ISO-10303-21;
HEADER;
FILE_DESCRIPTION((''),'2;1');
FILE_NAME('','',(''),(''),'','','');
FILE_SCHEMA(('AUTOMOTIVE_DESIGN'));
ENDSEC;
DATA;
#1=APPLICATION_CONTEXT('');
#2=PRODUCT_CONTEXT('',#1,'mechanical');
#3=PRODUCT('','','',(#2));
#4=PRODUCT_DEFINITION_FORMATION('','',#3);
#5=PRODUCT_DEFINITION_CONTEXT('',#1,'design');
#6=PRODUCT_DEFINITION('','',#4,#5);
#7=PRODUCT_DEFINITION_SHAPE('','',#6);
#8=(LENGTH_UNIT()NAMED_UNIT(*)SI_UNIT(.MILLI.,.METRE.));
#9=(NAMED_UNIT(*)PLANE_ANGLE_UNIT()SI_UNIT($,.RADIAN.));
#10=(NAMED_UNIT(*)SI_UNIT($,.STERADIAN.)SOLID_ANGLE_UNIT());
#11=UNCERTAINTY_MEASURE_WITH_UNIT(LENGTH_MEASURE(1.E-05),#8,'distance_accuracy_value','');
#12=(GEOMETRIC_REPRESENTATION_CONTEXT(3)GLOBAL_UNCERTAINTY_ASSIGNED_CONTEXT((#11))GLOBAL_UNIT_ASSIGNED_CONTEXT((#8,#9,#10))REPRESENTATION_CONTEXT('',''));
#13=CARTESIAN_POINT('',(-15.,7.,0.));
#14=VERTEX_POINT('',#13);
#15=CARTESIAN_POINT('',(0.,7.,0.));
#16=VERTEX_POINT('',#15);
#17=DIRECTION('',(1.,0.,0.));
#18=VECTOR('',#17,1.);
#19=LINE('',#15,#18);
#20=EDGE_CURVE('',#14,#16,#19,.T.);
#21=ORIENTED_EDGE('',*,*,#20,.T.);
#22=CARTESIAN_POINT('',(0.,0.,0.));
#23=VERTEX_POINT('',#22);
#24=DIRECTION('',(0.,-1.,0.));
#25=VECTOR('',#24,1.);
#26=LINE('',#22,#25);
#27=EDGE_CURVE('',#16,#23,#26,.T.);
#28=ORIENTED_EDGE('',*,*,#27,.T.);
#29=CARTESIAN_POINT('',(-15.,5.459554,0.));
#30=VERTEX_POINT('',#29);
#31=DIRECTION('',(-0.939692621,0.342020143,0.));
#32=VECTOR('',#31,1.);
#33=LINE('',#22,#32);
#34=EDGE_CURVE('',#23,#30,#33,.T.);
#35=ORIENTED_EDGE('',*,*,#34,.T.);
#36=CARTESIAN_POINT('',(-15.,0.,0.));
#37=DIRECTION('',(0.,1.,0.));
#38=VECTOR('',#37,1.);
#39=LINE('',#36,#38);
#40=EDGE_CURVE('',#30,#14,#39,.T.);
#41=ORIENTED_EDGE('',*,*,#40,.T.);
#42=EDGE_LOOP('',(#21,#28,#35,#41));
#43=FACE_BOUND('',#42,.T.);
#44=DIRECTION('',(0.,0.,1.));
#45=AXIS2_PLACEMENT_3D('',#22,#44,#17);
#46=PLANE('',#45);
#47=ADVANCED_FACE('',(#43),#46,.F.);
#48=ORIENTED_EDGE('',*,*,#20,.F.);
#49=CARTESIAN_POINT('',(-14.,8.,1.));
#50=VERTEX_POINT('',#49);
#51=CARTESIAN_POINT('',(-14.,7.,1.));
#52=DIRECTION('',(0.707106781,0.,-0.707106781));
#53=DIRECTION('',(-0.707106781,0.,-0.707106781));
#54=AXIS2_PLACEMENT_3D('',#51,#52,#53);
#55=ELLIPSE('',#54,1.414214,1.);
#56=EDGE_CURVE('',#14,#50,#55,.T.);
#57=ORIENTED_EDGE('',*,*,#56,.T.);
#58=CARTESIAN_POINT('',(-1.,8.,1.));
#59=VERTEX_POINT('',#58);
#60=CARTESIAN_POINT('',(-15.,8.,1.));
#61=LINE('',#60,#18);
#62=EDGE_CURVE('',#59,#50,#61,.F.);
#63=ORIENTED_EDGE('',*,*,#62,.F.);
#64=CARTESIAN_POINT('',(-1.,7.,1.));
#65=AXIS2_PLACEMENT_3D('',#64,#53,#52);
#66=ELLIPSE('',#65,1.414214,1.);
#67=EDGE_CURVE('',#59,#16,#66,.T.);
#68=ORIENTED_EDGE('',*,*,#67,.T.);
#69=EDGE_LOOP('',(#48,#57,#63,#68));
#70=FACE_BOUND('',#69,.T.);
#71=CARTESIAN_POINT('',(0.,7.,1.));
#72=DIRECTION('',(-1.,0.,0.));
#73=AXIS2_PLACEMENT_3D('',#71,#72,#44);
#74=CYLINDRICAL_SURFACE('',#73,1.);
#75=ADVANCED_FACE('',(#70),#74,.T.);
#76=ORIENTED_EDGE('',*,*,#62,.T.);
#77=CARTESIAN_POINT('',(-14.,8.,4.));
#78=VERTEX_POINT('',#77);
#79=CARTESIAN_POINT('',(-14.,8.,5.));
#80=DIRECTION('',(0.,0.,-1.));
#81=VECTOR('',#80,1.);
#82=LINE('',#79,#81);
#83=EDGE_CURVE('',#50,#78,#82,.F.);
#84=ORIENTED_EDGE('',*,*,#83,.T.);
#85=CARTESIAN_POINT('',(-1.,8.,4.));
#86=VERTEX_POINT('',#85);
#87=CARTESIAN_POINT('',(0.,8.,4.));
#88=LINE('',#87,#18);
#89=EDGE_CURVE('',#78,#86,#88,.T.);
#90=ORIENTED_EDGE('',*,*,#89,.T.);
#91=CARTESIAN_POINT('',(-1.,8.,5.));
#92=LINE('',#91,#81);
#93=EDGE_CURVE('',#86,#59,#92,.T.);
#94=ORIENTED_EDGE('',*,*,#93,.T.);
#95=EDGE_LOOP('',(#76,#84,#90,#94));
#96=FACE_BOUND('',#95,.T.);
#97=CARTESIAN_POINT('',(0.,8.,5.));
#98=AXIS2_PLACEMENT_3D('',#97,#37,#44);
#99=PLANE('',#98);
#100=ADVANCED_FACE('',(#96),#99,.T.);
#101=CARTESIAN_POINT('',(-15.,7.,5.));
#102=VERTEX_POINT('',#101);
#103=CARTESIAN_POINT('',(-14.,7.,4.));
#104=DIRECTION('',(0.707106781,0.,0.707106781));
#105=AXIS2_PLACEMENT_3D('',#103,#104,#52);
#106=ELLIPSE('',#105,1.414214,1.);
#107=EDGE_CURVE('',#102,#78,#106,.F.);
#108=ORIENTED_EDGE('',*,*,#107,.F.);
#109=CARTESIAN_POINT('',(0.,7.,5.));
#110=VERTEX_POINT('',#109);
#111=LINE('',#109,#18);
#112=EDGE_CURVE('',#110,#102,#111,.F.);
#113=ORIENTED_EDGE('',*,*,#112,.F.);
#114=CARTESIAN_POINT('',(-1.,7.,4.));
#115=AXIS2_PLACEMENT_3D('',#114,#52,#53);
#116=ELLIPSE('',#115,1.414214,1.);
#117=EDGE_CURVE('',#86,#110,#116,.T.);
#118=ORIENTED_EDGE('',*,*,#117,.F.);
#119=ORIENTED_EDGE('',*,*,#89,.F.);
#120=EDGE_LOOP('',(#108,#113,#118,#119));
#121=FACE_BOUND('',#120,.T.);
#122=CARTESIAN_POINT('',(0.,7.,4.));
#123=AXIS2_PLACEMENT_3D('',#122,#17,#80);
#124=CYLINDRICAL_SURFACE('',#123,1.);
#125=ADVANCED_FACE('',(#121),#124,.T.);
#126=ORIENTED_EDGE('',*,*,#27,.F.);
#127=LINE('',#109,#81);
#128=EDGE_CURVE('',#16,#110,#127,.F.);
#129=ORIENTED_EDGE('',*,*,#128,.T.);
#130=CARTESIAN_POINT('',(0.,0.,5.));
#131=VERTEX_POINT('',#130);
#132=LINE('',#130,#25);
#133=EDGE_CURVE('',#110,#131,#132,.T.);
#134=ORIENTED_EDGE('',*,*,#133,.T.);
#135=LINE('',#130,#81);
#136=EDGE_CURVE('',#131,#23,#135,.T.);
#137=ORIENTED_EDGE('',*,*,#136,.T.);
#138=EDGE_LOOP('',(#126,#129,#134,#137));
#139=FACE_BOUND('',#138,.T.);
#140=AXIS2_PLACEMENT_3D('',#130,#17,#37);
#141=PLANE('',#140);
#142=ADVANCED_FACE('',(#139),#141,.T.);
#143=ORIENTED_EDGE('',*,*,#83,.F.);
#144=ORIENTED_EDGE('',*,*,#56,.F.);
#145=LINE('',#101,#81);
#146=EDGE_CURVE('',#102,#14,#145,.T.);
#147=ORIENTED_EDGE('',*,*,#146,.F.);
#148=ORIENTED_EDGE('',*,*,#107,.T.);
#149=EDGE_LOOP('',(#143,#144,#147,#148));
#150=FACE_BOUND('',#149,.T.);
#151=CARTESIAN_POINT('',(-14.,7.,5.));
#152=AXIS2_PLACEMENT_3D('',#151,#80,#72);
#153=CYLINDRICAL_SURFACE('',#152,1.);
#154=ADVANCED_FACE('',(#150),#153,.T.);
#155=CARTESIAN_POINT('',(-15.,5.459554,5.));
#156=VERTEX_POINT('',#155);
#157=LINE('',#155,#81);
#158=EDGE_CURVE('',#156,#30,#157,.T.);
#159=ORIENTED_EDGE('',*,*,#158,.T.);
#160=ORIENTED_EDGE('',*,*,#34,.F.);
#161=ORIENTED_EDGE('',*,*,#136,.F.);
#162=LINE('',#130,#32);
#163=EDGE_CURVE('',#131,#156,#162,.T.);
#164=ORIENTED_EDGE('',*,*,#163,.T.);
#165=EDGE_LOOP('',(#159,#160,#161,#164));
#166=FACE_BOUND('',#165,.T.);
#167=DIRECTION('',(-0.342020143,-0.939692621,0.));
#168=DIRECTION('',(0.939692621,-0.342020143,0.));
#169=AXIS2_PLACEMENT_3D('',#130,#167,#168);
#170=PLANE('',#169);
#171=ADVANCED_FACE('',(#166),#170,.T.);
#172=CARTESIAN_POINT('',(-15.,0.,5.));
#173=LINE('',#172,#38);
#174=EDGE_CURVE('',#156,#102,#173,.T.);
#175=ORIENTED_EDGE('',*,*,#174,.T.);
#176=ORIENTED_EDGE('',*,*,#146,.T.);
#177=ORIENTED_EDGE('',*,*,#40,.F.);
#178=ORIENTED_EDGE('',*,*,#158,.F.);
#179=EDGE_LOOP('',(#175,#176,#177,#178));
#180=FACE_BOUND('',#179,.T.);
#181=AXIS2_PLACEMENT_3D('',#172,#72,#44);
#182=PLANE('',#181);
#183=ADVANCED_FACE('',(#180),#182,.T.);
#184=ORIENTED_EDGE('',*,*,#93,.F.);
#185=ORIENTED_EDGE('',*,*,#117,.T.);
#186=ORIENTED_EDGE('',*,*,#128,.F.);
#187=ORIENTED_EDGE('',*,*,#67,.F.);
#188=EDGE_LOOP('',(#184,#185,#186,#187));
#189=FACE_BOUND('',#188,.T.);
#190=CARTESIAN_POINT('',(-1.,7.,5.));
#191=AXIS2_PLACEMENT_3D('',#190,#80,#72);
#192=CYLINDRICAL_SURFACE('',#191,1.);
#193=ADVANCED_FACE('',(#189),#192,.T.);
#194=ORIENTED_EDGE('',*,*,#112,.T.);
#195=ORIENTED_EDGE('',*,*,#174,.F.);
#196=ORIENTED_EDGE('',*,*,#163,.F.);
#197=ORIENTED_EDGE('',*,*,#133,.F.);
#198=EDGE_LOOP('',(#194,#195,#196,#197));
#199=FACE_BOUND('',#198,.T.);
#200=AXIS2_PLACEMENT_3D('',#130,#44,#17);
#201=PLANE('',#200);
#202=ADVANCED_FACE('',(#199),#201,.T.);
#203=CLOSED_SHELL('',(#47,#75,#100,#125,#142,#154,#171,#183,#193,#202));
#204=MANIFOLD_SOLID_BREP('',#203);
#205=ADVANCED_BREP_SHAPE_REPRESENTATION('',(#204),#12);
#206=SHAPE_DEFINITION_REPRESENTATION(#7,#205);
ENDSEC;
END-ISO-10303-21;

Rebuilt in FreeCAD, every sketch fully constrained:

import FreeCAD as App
import Part
import Sketcher
from FreeCAD import Vector
Q = App.Units.Quantity


def edges_at(feature, points):
    """Names of the edges that pass closest to the given points."""
    edges = feature.Shape.Edges
    near = lambda p: min(range(len(edges)), key=lambda i: edges[i].distToShape(Part.Vertex(*p))[0])
    return sorted({f"Edge{near(p) + 1}" for p in points})


def add_polygon(sketch, points):
    """Adds a closed chain of lines whose ends are joined by coincident constraints."""
    first, n = sketch.GeometryCount, len(points)
    for a, b in zip(points, points[1:] + points[:1]):
        sketch.addGeometry(Part.LineSegment(App.Vector(*a, 0), App.Vector(*b, 0)), False)
    for i in range(n):
        sketch.addConstraint(Sketcher.Constraint("Coincident", first + i, 2, first + (i + 1) % n, 1))

doc = App.newDocument("Part")
body = doc.addObject("PartDesign::Body", "Body")

# Sketch on XY plane
sketch1 = body.newObject("Sketcher::SketchObject", "Sketch")
sketch1.AttachmentSupport = (doc.getObject("XY_Plane"), [""])
sketch1.MapMode = "FlatFace"
add_polygon(sketch1, [(0, 0), (0, 8), (-15, 8), (-15, 5.5)])  # lines 0-3
sketch1.addConstraint([
    Sketcher.Constraint("Vertical", 0),
    Sketcher.Constraint("Horizontal", 1),
    Sketcher.Constraint("Vertical", 2),
    Sketcher.Constraint("Coincident", 3, 2, -1, 1),
    Sketcher.Constraint("DistanceX", 1, 2, 1, 1, 15.0),
    Sketcher.Constraint("DistanceY", 0, 1, 0, 2, 8.0),
    Sketcher.Constraint("Angle", 3, Q("-20 deg")),
])
pad1 = body.newObject("PartDesign::Pad", "Pad")
pad1.Profile = sketch1
pad1.Length = 5
doc.recompute()

fillet = body.newObject("PartDesign::Fillet", "Fillet")
fillet.Base = (pad1, edges_at(pad1, [
    (-7.5, 8, 0),
    (-15, 8, 2.5),
    (0, 8, 2.5),
    (-7.5, 8, 5),
]))
fillet.Radius = 1

doc.recompute()
